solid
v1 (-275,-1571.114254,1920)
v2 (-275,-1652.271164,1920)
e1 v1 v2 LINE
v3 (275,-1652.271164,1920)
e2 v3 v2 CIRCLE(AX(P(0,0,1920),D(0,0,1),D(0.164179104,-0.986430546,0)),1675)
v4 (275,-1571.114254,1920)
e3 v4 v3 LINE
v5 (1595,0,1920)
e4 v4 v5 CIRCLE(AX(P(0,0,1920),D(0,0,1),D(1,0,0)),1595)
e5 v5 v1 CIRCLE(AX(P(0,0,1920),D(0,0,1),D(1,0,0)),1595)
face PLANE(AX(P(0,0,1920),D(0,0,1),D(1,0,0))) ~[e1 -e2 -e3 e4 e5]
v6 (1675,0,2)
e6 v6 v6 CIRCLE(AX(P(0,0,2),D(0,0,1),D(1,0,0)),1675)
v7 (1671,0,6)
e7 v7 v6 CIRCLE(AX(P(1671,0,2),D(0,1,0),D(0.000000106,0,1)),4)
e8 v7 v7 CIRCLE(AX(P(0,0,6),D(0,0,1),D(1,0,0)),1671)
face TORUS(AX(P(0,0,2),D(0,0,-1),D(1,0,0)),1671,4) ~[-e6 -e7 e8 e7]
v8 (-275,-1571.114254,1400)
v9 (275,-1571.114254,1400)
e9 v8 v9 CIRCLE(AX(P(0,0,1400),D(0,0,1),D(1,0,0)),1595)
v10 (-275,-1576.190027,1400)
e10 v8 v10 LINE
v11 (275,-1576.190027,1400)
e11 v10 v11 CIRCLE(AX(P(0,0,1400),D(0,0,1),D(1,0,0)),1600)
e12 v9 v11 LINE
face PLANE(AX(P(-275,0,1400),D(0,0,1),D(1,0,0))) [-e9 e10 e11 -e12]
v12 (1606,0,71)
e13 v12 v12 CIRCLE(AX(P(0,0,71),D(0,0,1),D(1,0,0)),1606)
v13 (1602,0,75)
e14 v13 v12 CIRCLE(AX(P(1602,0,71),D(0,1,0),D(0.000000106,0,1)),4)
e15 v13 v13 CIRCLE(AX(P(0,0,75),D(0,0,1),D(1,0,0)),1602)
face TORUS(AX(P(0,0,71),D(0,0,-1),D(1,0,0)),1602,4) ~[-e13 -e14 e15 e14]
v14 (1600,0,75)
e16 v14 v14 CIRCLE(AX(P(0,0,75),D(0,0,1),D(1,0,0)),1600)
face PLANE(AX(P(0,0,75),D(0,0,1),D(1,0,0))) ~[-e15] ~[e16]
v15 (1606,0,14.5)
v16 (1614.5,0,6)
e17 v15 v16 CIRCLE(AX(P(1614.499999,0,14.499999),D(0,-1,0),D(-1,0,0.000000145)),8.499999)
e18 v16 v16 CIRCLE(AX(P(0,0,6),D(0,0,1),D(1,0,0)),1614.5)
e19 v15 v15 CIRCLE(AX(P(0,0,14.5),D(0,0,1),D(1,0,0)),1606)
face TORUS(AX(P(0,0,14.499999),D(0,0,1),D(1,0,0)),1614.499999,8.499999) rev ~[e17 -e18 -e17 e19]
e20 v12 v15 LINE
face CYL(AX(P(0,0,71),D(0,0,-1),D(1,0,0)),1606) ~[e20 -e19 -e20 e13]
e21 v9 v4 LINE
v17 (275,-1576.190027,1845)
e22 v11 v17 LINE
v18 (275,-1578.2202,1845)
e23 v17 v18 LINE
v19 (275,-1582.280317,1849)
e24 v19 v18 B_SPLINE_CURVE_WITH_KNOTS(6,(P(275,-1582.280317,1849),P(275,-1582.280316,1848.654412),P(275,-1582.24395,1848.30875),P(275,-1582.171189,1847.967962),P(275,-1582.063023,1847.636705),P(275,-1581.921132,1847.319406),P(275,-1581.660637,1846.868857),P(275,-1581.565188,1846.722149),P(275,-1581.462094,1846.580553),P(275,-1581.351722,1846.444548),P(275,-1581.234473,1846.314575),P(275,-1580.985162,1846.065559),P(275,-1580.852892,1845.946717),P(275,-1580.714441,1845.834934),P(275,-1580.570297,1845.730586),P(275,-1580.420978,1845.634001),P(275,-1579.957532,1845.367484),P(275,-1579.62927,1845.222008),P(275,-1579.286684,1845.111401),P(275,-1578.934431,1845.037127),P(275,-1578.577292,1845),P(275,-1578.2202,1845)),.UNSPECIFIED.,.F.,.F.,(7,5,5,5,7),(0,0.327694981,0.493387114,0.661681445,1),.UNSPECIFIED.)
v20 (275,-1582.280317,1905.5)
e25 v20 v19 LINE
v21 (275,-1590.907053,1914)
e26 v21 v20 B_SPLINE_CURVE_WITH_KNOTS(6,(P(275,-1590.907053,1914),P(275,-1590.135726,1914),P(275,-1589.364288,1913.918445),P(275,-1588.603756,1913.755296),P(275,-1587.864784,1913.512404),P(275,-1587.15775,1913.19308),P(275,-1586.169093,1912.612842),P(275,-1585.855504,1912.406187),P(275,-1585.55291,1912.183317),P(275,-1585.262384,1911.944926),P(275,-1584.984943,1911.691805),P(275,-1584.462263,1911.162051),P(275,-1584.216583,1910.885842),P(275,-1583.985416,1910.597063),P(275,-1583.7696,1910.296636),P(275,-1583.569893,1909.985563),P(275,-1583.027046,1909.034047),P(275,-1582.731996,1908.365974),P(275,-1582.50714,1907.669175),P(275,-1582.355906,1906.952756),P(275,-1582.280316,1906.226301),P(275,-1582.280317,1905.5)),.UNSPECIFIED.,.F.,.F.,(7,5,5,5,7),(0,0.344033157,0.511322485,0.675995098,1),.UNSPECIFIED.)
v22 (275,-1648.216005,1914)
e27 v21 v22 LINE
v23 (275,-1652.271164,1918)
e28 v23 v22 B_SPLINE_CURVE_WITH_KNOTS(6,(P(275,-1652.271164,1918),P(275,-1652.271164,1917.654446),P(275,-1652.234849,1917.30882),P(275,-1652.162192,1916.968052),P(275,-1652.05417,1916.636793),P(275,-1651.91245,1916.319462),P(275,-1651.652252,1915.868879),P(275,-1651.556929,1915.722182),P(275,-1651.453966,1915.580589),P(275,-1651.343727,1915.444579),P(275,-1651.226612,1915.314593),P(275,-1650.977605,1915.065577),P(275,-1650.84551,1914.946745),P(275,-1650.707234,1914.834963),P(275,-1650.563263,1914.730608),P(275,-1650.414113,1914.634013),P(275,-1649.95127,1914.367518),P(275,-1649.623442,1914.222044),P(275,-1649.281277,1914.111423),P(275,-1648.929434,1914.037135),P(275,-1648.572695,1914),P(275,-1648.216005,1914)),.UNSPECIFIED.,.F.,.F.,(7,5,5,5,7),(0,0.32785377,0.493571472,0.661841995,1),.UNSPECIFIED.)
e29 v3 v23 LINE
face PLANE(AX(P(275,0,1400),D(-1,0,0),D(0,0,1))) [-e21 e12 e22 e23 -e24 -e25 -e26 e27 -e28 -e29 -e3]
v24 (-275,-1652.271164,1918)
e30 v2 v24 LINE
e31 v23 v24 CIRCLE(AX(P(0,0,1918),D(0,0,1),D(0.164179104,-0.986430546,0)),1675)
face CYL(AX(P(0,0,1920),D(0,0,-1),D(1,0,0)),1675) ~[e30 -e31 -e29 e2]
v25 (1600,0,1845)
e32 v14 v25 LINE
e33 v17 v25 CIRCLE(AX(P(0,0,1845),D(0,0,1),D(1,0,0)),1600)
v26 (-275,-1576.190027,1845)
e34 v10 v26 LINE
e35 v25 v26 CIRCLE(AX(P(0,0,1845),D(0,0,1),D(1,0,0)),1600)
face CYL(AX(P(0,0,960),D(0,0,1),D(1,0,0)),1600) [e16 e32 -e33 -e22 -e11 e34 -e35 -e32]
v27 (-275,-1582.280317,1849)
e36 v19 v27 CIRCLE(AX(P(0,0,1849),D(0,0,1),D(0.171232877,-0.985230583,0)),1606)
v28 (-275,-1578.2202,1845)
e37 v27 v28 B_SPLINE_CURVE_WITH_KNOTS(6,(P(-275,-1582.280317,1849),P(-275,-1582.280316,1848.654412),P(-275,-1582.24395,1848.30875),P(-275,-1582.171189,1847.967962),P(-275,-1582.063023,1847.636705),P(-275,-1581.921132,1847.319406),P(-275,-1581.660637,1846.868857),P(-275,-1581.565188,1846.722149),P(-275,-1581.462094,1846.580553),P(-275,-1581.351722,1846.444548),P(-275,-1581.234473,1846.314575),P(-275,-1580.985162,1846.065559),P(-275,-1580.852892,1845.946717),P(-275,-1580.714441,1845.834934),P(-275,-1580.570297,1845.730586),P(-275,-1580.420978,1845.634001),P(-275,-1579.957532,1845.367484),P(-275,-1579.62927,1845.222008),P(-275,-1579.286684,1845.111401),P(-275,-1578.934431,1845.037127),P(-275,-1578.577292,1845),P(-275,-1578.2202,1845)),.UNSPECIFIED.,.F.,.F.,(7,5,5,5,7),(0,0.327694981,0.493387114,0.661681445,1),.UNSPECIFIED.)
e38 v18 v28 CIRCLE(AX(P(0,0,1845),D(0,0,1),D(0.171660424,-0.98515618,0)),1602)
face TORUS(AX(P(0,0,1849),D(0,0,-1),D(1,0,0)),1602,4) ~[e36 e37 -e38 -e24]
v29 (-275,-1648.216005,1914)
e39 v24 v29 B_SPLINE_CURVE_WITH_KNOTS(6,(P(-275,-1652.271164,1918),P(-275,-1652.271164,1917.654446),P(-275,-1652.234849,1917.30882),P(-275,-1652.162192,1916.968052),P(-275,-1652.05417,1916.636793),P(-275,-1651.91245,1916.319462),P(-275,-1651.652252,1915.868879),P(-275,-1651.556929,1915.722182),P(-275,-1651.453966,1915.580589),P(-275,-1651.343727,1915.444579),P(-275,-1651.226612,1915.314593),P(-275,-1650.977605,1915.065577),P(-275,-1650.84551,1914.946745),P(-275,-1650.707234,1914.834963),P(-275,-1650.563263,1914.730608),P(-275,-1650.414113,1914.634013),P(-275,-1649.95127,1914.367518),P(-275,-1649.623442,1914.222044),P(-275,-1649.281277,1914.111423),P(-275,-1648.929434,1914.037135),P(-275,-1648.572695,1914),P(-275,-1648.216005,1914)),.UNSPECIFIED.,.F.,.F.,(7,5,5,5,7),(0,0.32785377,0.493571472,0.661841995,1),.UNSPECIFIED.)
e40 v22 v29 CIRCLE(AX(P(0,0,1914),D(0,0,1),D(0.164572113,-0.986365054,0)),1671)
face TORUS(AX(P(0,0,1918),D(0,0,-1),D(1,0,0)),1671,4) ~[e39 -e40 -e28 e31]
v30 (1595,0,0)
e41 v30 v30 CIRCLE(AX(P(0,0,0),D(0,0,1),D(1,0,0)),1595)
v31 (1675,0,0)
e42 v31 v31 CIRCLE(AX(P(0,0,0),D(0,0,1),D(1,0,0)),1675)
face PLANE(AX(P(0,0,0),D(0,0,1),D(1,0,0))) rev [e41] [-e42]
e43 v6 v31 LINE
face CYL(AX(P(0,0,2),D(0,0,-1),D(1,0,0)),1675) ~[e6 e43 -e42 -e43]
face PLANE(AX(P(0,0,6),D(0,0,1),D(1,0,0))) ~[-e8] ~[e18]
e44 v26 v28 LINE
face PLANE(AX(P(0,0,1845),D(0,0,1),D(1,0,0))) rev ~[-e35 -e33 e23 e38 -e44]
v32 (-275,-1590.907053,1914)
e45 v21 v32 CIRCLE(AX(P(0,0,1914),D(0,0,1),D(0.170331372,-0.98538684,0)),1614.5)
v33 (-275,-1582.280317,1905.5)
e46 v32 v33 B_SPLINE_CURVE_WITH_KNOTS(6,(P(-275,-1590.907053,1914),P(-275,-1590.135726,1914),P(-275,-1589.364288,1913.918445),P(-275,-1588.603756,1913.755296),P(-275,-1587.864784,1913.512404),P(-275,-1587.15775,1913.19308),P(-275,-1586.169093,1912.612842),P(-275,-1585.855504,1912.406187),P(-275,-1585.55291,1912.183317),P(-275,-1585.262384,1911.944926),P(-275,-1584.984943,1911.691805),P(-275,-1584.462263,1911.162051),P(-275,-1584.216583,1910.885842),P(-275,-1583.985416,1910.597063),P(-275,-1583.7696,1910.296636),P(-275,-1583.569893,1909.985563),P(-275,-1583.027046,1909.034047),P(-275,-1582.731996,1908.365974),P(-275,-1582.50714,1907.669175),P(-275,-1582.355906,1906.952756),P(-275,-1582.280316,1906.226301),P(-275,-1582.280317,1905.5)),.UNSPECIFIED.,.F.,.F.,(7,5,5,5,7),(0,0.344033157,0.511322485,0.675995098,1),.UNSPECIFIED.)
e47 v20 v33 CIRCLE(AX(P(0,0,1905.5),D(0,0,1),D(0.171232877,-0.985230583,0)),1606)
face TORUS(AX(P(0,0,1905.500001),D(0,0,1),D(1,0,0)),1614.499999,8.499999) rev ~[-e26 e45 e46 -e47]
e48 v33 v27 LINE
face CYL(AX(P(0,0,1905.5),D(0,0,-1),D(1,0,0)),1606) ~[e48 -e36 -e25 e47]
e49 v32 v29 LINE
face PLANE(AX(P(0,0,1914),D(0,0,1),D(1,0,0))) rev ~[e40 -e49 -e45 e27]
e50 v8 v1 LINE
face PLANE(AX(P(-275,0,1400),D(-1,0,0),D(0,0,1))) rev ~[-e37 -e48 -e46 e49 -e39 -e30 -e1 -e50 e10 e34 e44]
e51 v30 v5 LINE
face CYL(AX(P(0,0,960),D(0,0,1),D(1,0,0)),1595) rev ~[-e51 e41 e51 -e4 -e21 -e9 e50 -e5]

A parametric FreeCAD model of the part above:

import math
import FreeCAD as App
import Part
import Sketcher
from FreeCAD import Vector

doc = App.newDocument("Part")
body = doc.addObject("PartDesign::Body", "Body")

# Sketch on XZ plane
sketch1 = body.newObject("Sketcher::SketchObject", "Sketch")
sketch1.AttachmentSupport = (doc.getObject("XZ_Plane"), [""])
sketch1.MapMode = "FlatFace"
sketch1.addGeometry([
    Part.LineSegment(Vector(-275, 1920, 0), Vector(-275, 1400, 0)),
    Part.LineSegment(Vector(-275, 1400, 0), Vector(275, 1400, 0)),
    Part.LineSegment(Vector(275, 1400, 0), Vector(275, 1920, 0)),
    Part.LineSegment(Vector(275, 1920, 0), Vector(-275, 1920, 0)),
], False)
sketch1.addConstraint([
    Sketcher.Constraint("Coincident", 0, 2, 1, 1),
    Sketcher.Constraint("Coincident", 1, 2, 2, 1),
    Sketcher.Constraint("Coincident", 2, 2, 3, 1),
    Sketcher.Constraint("Coincident", 3, 2, 0, 1),
    Sketcher.Constraint("Vertical", 0),
    Sketcher.Constraint("Horizontal", 1),
    Sketcher.Constraint("Vertical", 2),
    Sketcher.Constraint("Horizontal", 3),
    Sketcher.Constraint("DistanceX", 1, 1, 1, 2, 550.0),
    Sketcher.Constraint("DistanceY", 0, 2, 0, 1, 520.0),
    Sketcher.Constraint("DistanceX", 0, 2, -1, 1, 275.0),
    Sketcher.Constraint("DistanceY", -1, 1, 0, 2, 1400.0),
])
pad1 = body.newObject("PartDesign::Pad", "Pad")
pad1.Profile = sketch1
pad1.Length = 2500
body2 = doc.addObject("PartDesign::Body", "Body001")

# Sketch on XZ plane
sketch2 = body2.newObject("Sketcher::SketchObject", "Sketch001")
sketch2.AttachmentSupport = (doc.getObject("XZ_Plane001"), [""])
sketch2.MapMode = "FlatFace"
sketch2.addGeometry([
    Part.LineSegment(Vector(1600, 0, 0), Vector(1600, 75, 0)),  # 0
    Part.LineSegment(Vector(1600, 75, 0), Vector(1602, 75, 0)),  # 1
    Part.ArcOfCircle(Part.Circle(Vector(1602, 71, 0), Vector(0, 0, 1), 4), math.radians(0.000006), math.radians(89.999994)),  # 2
    Part.LineSegment(Vector(1606, 71, 0), Vector(1606, 14.5, 0)),  # 3
    Part.ArcOfCircle(Part.Circle(Vector(1614.499999, 14.499999, 0), Vector(0, 0, 1), 8.499999), math.radians(179.999992), math.radians(270.000008)),  # 4
    Part.LineSegment(Vector(1614.5, 6, 0), Vector(1671, 6, 0)),  # 5
    Part.ArcOfCircle(Part.Circle(Vector(1671, 2, 0), Vector(0, 0, 1), 4), math.radians(0.000006), math.radians(89.999994)),  # 6
    Part.LineSegment(Vector(1675, 2, 0), Vector(1675, 0, 0)),  # 7
    Part.LineSegment(Vector(1675, 0, 0), Vector(1600, 0, 0)),  # 8
], False)
sketch2.addConstraint([
    Sketcher.Constraint("Coincident", 0, 2, 1, 1),
    Sketcher.Constraint("Tangent", 1, 2, 2, 2),
    Sketcher.Constraint("Tangent", 2, 1, 3, 1),
    Sketcher.Constraint("Tangent", 3, 2, 4, 1),
    Sketcher.Constraint("Tangent", 4, 2, 5, 1),
    Sketcher.Constraint("Tangent", 5, 2, 6, 2),
    Sketcher.Constraint("Tangent", 6, 1, 7, 1),
    Sketcher.Constraint("Coincident", 7, 2, 8, 1),
    Sketcher.Constraint("Coincident", 8, 2, 0, 1),
    Sketcher.Constraint("Vertical", 0),
    Sketcher.Constraint("Horizontal", 1),
    Sketcher.Constraint("Vertical", 3),
    Sketcher.Constraint("Horizontal", 5),
    Sketcher.Constraint("Vertical", 7),
    Sketcher.Constraint("Horizontal", 8),
    Sketcher.Constraint("Equal", 2, 6),
    Sketcher.Constraint("PointOnObject", 7, 2, -1),
    Sketcher.Constraint("Equal", 8, 0),
    Sketcher.Constraint("Equal", 5, 3),
    Sketcher.Constraint("Radius", 2, 4.0),
    Sketcher.Constraint("Radius", 4, 8.499999),
    Sketcher.Constraint("DistanceX", 1, 1, 1, 2, 2.0),
    Sketcher.Constraint("DistanceX", 8, 2, 8, 1, 75.0),
    Sketcher.Constraint("DistanceX", -1, 1, 2, 3, 1602.0),
])
revolution = body2.newObject("PartDesign::Revolution", "Revolution")
revolution.Profile = sketch2
revolution.ReferenceAxis = (sketch2, ["V_Axis"])
revolution.Angle = 360
body3 = doc.addObject("PartDesign::Body", "Body002")

# Sketch on XZ plane
sketch3 = body3.newObject("Sketcher::SketchObject", "Sketch002")
sketch3.AttachmentSupport = (doc.getObject("XZ_Plane002"), [""])
sketch3.MapMode = "FlatFace"
sketch3.addGeometry([
    Part.LineSegment(Vector(1600, 1920, 0), Vector(1675, 1920, 0)),  # 0
    Part.LineSegment(Vector(1675, 1920, 0), Vector(1675, 1918, 0)),  # 1
    Part.ArcOfCircle(Part.Circle(Vector(1671, 1918, 0), Vector(0, 0, 1), 4), math.radians(-89.999994), math.radians(-0.000006)),  # 2
    Part.LineSegment(Vector(1671, 1914, 0), Vector(1614.5, 1914, 0)),  # 3
    Part.ArcOfCircle(Part.Circle(Vector(1614.499999, 1905.500001, 0), Vector(0, 0, 1), 8.499999), math.radians(89.999992), math.radians(180.000008)),  # 4
    Part.LineSegment(Vector(1606, 1905.5, 0), Vector(1606, 1849, 0)),  # 5
    Part.ArcOfCircle(Part.Circle(Vector(1602, 1849, 0), Vector(0, 0, 1), 4), math.radians(-89.999994), math.radians(-0.000006)),  # 6
    Part.LineSegment(Vector(1602, 1845, 0), Vector(1600, 1845, 0)),  # 7
    Part.LineSegment(Vector(1600, 1845, 0), Vector(1600, 1920, 0)),  # 8
], False)
sketch3.addConstraint([
    Sketcher.Constraint("Coincident", 0, 2, 1, 1),
    Sketcher.Constraint("Tangent", 1, 2, 2, 2),
    Sketcher.Constraint("Tangent", 2, 1, 3, 1),
    Sketcher.Constraint("Tangent", 3, 2, 4, 1),
    Sketcher.Constraint("Tangent", 4, 2, 5, 1),
    Sketcher.Constraint("Tangent", 5, 2, 6, 2),
    Sketcher.Constraint("Tangent", 6, 1, 7, 1),
    Sketcher.Constraint("Coincident", 7, 2, 8, 1),
    Sketcher.Constraint("Coincident", 8, 2, 0, 1),
    Sketcher.Constraint("Horizontal", 0),
    Sketcher.Constraint("Vertical", 1),
    Sketcher.Constraint("Horizontal", 3),
    Sketcher.Constraint("Vertical", 5),
    Sketcher.Constraint("Horizontal", 7),
    Sketcher.Constraint("Vertical", 8),
    Sketcher.Constraint("Equal", 2, 6),
    Sketcher.Constraint("Equal", 7, 1),
    Sketcher.Constraint("Equal", 3, 5),
    Sketcher.Constraint("Radius", 2, 4.0),
    Sketcher.Constraint("Radius", 4, 8.499999),
    Sketcher.Constraint("DistanceX", 0, 1, 0, 2, 75.0),
    Sketcher.Constraint("DistanceX", 7, 2, 7, 1, 2.0),
    Sketcher.Constraint("DistanceX", -1, 1, 2, 3, 1671.0),
    Sketcher.Constraint("DistanceY", -1, 1, 2, 3, 1918.0),
])
revolution2 = body3.newObject("PartDesign::Revolution", "Revolution001")
revolution2.Profile = sketch3
revolution2.ReferenceAxis = (sketch3, ["V_Axis"])
revolution2.Angle = 360
body4 = doc.addObject("PartDesign::Body", "Body003")

# Sketch on XZ plane
sketch4 = body4.newObject("Sketcher::SketchObject", "Sketch003")
sketch4.AttachmentSupport = (doc.getObject("XZ_Plane003"), [""])
sketch4.MapMode = "FlatFace"
sketch4.addGeometry([
    Part.LineSegment(Vector(1595, 1920, 0), Vector(1595, 0, 0)),
    Part.LineSegment(Vector(1595, 0, 0), Vector(1600, 0, 0)),
    Part.LineSegment(Vector(1600, 0, 0), Vector(1600, 1920, 0)),
    Part.LineSegment(Vector(1600, 1920, 0), Vector(1595, 1920, 0)),
], False)
sketch4.addConstraint([
    Sketcher.Constraint("Coincident", 0, 2, 1, 1),
    Sketcher.Constraint("Coincident", 1, 2, 2, 1),
    Sketcher.Constraint("Coincident", 2, 2, 3, 1),
    Sketcher.Constraint("Coincident", 3, 2, 0, 1),
    Sketcher.Constraint("Vertical", 0),
    Sketcher.Constraint("Horizontal", 1),
    Sketcher.Constraint("Vertical", 2),
    Sketcher.Constraint("Horizontal", 3),
    Sketcher.Constraint("PointOnObject", 0, 2, -1),
    Sketcher.Constraint("DistanceX", 1, 1, 1, 2, 5.0),
    Sketcher.Constraint("DistanceY", 0, 2, 0, 1, 1920.0),
    Sketcher.Constraint("DistanceX", -1, 1, 0, 2, 1595.0),
])
revolution3 = body4.newObject("PartDesign::Revolution", "Revolution002")
revolution3.Profile = sketch4
revolution3.ReferenceAxis = (sketch4, ["V_Axis"])
revolution3.Angle = 360
doc.recompute()

boolean = body4.newObject("PartDesign::Boolean", "Boolean")
boolean.Type = "Fuse"
boolean.addObjects([body2])
doc.recompute()

boolean2 = body4.newObject("PartDesign::Boolean", "Boolean001")
boolean2.Type = "Fuse"
boolean2.addObjects([body3])
doc.recompute()

boolean3 = body4.newObject("PartDesign::Boolean", "Boolean002")
boolean3.Type = "Cut"
boolean3.addObjects([body])

doc.recompute()
